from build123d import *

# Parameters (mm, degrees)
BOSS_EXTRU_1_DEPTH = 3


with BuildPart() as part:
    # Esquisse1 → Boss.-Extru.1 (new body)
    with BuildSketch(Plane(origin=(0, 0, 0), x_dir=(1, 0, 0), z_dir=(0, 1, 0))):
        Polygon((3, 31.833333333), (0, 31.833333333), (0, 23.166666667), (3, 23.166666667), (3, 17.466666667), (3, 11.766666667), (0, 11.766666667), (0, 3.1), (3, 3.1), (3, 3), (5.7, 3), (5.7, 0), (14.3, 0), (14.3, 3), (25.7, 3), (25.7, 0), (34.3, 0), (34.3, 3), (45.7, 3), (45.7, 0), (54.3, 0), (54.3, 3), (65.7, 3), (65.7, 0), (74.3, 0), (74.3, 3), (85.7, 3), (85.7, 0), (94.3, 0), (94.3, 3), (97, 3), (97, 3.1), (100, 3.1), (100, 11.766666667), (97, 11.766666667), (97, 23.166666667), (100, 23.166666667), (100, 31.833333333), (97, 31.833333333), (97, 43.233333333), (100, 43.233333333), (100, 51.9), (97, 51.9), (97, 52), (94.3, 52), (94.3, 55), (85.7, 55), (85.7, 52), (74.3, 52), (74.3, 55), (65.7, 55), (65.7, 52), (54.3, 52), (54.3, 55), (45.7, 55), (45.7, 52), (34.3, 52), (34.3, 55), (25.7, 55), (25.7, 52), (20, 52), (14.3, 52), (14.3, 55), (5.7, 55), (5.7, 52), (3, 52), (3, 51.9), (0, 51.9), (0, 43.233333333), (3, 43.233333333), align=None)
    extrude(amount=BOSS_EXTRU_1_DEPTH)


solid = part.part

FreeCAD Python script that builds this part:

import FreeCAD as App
import Part
import Sketcher
Q = App.Units.Quantity


def add_polygon(sketch, points):
    """Adds a closed chain of lines whose ends are joined by coincident constraints."""
    first, n = sketch.GeometryCount, len(points)
    for a, b in zip(points, points[1:] + points[:1]):
        sketch.addGeometry(Part.LineSegment(App.Vector(*a, 0), App.Vector(*b, 0)), False)
    for i in range(n):
        sketch.addConstraint(Sketcher.Constraint("Coincident", first + i, 2, first + (i + 1) % n, 1))

doc = App.newDocument("Part")
body = doc.addObject("PartDesign::Body", "Body")

# Sketch on XZ plane
sketch1 = body.newObject("Sketcher::SketchObject", "Sketch")
sketch1.AttachmentSupport = (doc.getObject("XZ_Plane"), [""])
sketch1.MapMode = "FlatFace"
add_polygon(sketch1, [(3, -31.83), (0, -31.83), (0, -23.17), (3, -23.17), (3, -11.77), (0, -11.77), (0, -3.1), (3, -3.1), (3, -3), (5.7, -3), (5.7, 0), (14.3, 0), (14.3, -3), (25.7, -3), (25.7, 0), (34.3, 0), (34.3, -3), (45.7, -3), (45.7, 0), (54.3, 0), (54.3, -3), (65.7, -3), (65.7, 0), (74.3, 0), (74.3, -3), (85.7, -3), (85.7, 0), (94.3, 0), (94.3, -3), (97, -3), (97, -3.1), (100, -3.1), (100, -11.77), (97, -11.77), (97, -23.17), (100, -23.17), (100, -31.83), (97, -31.83), (97, -43.23), (100, -43.23), (100, -51.9), (97, -51.9), (97, -52), (94.3, -52), (94.3, -55), (85.7, -55), (85.7, -52), (74.3, -52), (74.3, -55), (65.7, -55), (65.7, -52), (54.3, -52), (54.3, -55), (45.7, -55), (45.7, -52), (34.3, -52), (34.3, -55), (25.7, -55), (25.7, -52), (14.3, -52), (14.3, -55), (5.7, -55), (5.7, -52), (3, -52), (3, -51.9), (0, -51.9), (0, -43.23), (3, -43.23)])  # lines 0-67
sketch1.addConstraint(Sketcher.Constraint("Horizontal", 0))
sketch1.addConstraint(Sketcher.Constraint("Vertical", 1))
sketch1.addConstraint(Sketcher.Constraint("Horizontal", 2))
sketch1.addConstraint(Sketcher.Constraint("Vertical", 3))
sketch1.addConstraint(Sketcher.Constraint("Horizontal", 4))
sketch1.addConstraint(Sketcher.Constraint("Vertical", 5))
sketch1.addConstraint(Sketcher.Constraint("Horizontal", 6))
sketch1.addConstraint(Sketcher.Constraint("Vertical", 7))
sketch1.addConstraint(Sketcher.Constraint("Horizontal", 8))
sketch1.addConstraint(Sketcher.Constraint("Vertical", 9))
sketch1.addConstraint(Sketcher.Constraint("Horizontal", 10))
sketch1.addConstraint(Sketcher.Constraint("Vertical", 11))
sketch1.addConstraint(Sketcher.Constraint("Horizontal", 12))
sketch1.addConstraint(Sketcher.Constraint("Vertical", 13))
sketch1.addConstraint(Sketcher.Constraint("Horizontal", 14))
sketch1.addConstraint(Sketcher.Constraint("Vertical", 15))
sketch1.addConstraint(Sketcher.Constraint("Horizontal", 16))
sketch1.addConstraint(Sketcher.Constraint("Vertical", 17))
sketch1.addConstraint(Sketcher.Constraint("Horizontal", 18))
sketch1.addConstraint(Sketcher.Constraint("Vertical", 19))
sketch1.addConstraint(Sketcher.Constraint("Horizontal", 20))
sketch1.addConstraint(Sketcher.Constraint("Vertical", 21))
sketch1.addConstraint(Sketcher.Constraint("Horizontal", 22))
sketch1.addConstraint(Sketcher.Constraint("Vertical", 23))
sketch1.addConstraint(Sketcher.Constraint("Horizontal", 24))
sketch1.addConstraint(Sketcher.Constraint("Vertical", 25))
sketch1.addConstraint(Sketcher.Constraint("Horizontal", 26))
sketch1.addConstraint(Sketcher.Constraint("Vertical", 27))
sketch1.addConstraint(Sketcher.Constraint("Horizontal", 28))
sketch1.addConstraint(Sketcher.Constraint("Vertical", 29))
sketch1.addConstraint(Sketcher.Constraint("Horizontal", 30))
sketch1.addConstraint(Sketcher.Constraint("Vertical", 31))
sketch1.addConstraint(Sketcher.Constraint("Horizontal", 32))
sketch1.addConstraint(Sketcher.Constraint("Vertical", 33))
sketch1.addConstraint(Sketcher.Constraint("Horizontal", 34))
sketch1.addConstraint(Sketcher.Constraint("Vertical", 35))
sketch1.addConstraint(Sketcher.Constraint("Horizontal", 36))
sketch1.addConstraint(Sketcher.Constraint("Vertical", 37))
sketch1.addConstraint(Sketcher.Constraint("Horizontal", 38))
sketch1.addConstraint(Sketcher.Constraint("Vertical", 39))
sketch1.addConstraint(Sketcher.Constraint("Horizontal", 40))
sketch1.addConstraint(Sketcher.Constraint("Vertical", 41))
sketch1.addConstraint(Sketcher.Constraint("Horizontal", 42))
sketch1.addConstraint(Sketcher.Constraint("Vertical", 43))
sketch1.addConstraint(Sketcher.Constraint("Horizontal", 44))
sketch1.addConstraint(Sketcher.Constraint("Vertical", 45))
sketch1.addConstraint(Sketcher.Constraint("Horizontal", 46))
sketch1.addConstraint(Sketcher.Constraint("Vertical", 47))
sketch1.addConstraint(Sketcher.Constraint("Horizontal", 48))
sketch1.addConstraint(Sketcher.Constraint("Vertical", 49))
sketch1.addConstraint(Sketcher.Constraint("Horizontal", 50))
sketch1.addConstraint(Sketcher.Constraint("Vertical", 51))
sketch1.addConstraint(Sketcher.Constraint("Horizontal", 52))
sketch1.addConstraint(Sketcher.Constraint("Vertical", 53))
sketch1.addConstraint(Sketcher.Constraint("Horizontal", 54))
sketch1.addConstraint(Sketcher.Constraint("Vertical", 55))
sketch1.addConstraint(Sketcher.Constraint("Horizontal", 56))
sketch1.addConstraint(Sketcher.Constraint("Vertical", 57))
sketch1.addConstraint(Sketcher.Constraint("Horizontal", 58))
sketch1.addConstraint(Sketcher.Constraint("Vertical", 59))
sketch1.addConstraint(Sketcher.Constraint("Horizontal", 60))
sketch1.addConstraint(Sketcher.Constraint("Vertical", 61))
sketch1.addConstraint(Sketcher.Constraint("Horizontal", 62))
sketch1.addConstraint(Sketcher.Constraint("Vertical", 63))
sketch1.addConstraint(Sketcher.Constraint("Horizontal", 64))
sketch1.addConstraint(Sketcher.Constraint("Vertical", 65))
sketch1.addConstraint(Sketcher.Constraint("Horizontal", 66))
sketch1.addConstraint(Sketcher.Constraint("Vertical", 67))
sketch1.addConstraint(Sketcher.Constraint("PointOnObject", 0, 2, -2))
sketch1.addConstraint(Sketcher.Constraint("PointOnObject", 4, 2, -2))
sketch1.addConstraint(Sketcher.Constraint("PointOnObject", 9, 2, -1))
sketch1.addConstraint(Sketcher.Constraint("PointOnObject", 13, 2, -1))
sketch1.addConstraint(Sketcher.Constraint("PointOnObject", 17, 2, -1))
sketch1.addConstraint(Sketcher.Constraint("PointOnObject", 21, 2, -1))
sketch1.addConstraint(Sketcher.Constraint("PointOnObject", 25, 2, -1))
sketch1.addConstraint(Sketcher.Constraint("PointOnObject", 64, 2, -2))
sketch1.addConstraint(Sketcher.Constraint("Horizontal", 8, 2, 11, 2))
sketch1.addConstraint(Sketcher.Constraint("Horizontal", 12, 2, 15, 2))
sketch1.addConstraint(Sketcher.Constraint("Horizontal", 16, 2, 19, 2))
sketch1.addConstraint(Sketcher.Constraint("Horizontal", 20, 2, 23, 2))
sketch1.addConstraint(Sketcher.Constraint("Horizontal", 24, 2, 27, 2))
sketch1.addConstraint(Sketcher.Constraint("Horizontal", 6, 2, 29, 2))
sketch1.addConstraint(Sketcher.Constraint("Horizontal", 4, 2, 31, 2))
sketch1.addConstraint(Sketcher.Constraint("Horizontal", 2, 2, 33, 2))
sketch1.addConstraint(Sketcher.Constraint("Horizontal", 0, 2, 35, 2))
sketch1.addConstraint(Sketcher.Constraint("Horizontal", 42, 2, 45, 2))
sketch1.addConstraint(Sketcher.Constraint("Horizontal", 44, 2, 47, 2))
sketch1.addConstraint(Sketcher.Constraint("Horizontal", 46, 2, 49, 2))
sketch1.addConstraint(Sketcher.Constraint("Horizontal", 48, 2, 51, 2))
sketch1.addConstraint(Sketcher.Constraint("Horizontal", 50, 2, 53, 2))
sketch1.addConstraint(Sketcher.Constraint("Horizontal", 52, 2, 55, 2))
sketch1.addConstraint(Sketcher.Constraint("Horizontal", 54, 2, 57, 2))
sketch1.addConstraint(Sketcher.Constraint("Horizontal", 56, 2, 59, 2))
sketch1.addConstraint(Sketcher.Constraint("Horizontal", 58, 2, 61, 2))
sketch1.addConstraint(Sketcher.Constraint("Horizontal", 40, 2, 63, 2))
sketch1.addConstraint(Sketcher.Constraint("Horizontal", 38, 2, 65, 2))
sketch1.addConstraint(Sketcher.Constraint("Vertical", 3, 2, 6, 2))
sketch1.addConstraint(Sketcher.Constraint("Vertical", 29, 2, 32, 2))
sketch1.addConstraint(Sketcher.Constraint("Vertical", 31, 2, 34, 2))
sketch1.addConstraint(Sketcher.Constraint("Vertical", 33, 2, 36, 2))
sketch1.addConstraint(Sketcher.Constraint("Vertical", 35, 2, 38, 2))
sketch1.addConstraint(Sketcher.Constraint("Vertical", 37, 2, 40, 2))
sketch1.addConstraint(Sketcher.Constraint("Vertical", 27, 2, 42, 2))
sketch1.addConstraint(Sketcher.Constraint("Vertical", 25, 2, 44, 2))
sketch1.addConstraint(Sketcher.Constraint("Vertical", 23, 2, 46, 2))
sketch1.addConstraint(Sketcher.Constraint("Vertical", 21, 2, 48, 2))
sketch1.addConstraint(Sketcher.Constraint("Vertical", 19, 2, 50, 2))
sketch1.addConstraint(Sketcher.Constraint("Vertical", 17, 2, 52, 2))
sketch1.addConstraint(Sketcher.Constraint("Vertical", 15, 2, 54, 2))
sketch1.addConstraint(Sketcher.Constraint("Vertical", 13, 2, 56, 2))
sketch1.addConstraint(Sketcher.Constraint("Vertical", 11, 2, 58, 2))
sketch1.addConstraint(Sketcher.Constraint("Vertical", 9, 2, 60, 2))
sketch1.addConstraint(Sketcher.Constraint("Vertical", 7, 2, 62, 2))
sketch1.addConstraint(Sketcher.Constraint("Vertical", 63, 2, 66, 2))
sketch1.addConstraint(Sketcher.Constraint("Equal", 10, 14))
sketch1.addConstraint(Sketcher.Constraint("Equal", 12, 16))
sketch1.addConstraint(Sketcher.Constraint("Equal", 14, 18))
sketch1.addConstraint(Sketcher.Constraint("Equal", 16, 20))
sketch1.addConstraint(Sketcher.Constraint("Equal", 18, 22))
sketch1.addConstraint(Sketcher.Constraint("Equal", 20, 24))
sketch1.addConstraint(Sketcher.Constraint("Equal", 22, 26))
sketch1.addConstraint(Sketcher.Constraint("Equal", 8, 28))
sketch1.addConstraint(Sketcher.Constraint("Equal", 6, 30))
sketch1.addConstraint(Sketcher.Constraint("Equal", 58, 3))
sketch1.addConstraint(Sketcher.Constraint("Equal", 1, 5))
sketch1.addConstraint(Sketcher.Constraint("Equal", 66, 9))
sketch1.addConstraint(Sketcher.Constraint("Equal", 33, 37))
sketch1.addConstraint(Sketcher.Constraint("Equal", 35, 39))
sketch1.addConstraint(Sketcher.Constraint("Equal", 29, 41))
sketch1.addConstraint(Sketcher.Constraint("Equal", 27, 43))
sketch1.addConstraint(Sketcher.Constraint("DistanceX", 0, 2, 0, 1, Q("3 mm")))
sketch1.addConstraint(Sketcher.Constraint("DistanceX", 8, 1, 8, 2, Q("2.7 mm")))
sketch1.addConstraint(Sketcher.Constraint("DistanceX", 10, 1, 10, 2, Q("8.6 mm")))
sketch1.addConstraint(Sketcher.Constraint("DistanceX", 12, 1, 12, 2, Q("11.4 mm")))
sketch1.addConstraint(Sketcher.Constraint("DistanceY", 7, 1, 7, 2, Q("0.1 mm")))
sketch1.addConstraint(Sketcher.Constraint("DistanceY", 41, 2, -1, 1, Q("52 mm")))
pad1 = body.newObject("PartDesign::Pad", "Pad")
pad1.Profile = sketch1
pad1.Length = 3
pad1.Reversed = True

doc.recompute()
